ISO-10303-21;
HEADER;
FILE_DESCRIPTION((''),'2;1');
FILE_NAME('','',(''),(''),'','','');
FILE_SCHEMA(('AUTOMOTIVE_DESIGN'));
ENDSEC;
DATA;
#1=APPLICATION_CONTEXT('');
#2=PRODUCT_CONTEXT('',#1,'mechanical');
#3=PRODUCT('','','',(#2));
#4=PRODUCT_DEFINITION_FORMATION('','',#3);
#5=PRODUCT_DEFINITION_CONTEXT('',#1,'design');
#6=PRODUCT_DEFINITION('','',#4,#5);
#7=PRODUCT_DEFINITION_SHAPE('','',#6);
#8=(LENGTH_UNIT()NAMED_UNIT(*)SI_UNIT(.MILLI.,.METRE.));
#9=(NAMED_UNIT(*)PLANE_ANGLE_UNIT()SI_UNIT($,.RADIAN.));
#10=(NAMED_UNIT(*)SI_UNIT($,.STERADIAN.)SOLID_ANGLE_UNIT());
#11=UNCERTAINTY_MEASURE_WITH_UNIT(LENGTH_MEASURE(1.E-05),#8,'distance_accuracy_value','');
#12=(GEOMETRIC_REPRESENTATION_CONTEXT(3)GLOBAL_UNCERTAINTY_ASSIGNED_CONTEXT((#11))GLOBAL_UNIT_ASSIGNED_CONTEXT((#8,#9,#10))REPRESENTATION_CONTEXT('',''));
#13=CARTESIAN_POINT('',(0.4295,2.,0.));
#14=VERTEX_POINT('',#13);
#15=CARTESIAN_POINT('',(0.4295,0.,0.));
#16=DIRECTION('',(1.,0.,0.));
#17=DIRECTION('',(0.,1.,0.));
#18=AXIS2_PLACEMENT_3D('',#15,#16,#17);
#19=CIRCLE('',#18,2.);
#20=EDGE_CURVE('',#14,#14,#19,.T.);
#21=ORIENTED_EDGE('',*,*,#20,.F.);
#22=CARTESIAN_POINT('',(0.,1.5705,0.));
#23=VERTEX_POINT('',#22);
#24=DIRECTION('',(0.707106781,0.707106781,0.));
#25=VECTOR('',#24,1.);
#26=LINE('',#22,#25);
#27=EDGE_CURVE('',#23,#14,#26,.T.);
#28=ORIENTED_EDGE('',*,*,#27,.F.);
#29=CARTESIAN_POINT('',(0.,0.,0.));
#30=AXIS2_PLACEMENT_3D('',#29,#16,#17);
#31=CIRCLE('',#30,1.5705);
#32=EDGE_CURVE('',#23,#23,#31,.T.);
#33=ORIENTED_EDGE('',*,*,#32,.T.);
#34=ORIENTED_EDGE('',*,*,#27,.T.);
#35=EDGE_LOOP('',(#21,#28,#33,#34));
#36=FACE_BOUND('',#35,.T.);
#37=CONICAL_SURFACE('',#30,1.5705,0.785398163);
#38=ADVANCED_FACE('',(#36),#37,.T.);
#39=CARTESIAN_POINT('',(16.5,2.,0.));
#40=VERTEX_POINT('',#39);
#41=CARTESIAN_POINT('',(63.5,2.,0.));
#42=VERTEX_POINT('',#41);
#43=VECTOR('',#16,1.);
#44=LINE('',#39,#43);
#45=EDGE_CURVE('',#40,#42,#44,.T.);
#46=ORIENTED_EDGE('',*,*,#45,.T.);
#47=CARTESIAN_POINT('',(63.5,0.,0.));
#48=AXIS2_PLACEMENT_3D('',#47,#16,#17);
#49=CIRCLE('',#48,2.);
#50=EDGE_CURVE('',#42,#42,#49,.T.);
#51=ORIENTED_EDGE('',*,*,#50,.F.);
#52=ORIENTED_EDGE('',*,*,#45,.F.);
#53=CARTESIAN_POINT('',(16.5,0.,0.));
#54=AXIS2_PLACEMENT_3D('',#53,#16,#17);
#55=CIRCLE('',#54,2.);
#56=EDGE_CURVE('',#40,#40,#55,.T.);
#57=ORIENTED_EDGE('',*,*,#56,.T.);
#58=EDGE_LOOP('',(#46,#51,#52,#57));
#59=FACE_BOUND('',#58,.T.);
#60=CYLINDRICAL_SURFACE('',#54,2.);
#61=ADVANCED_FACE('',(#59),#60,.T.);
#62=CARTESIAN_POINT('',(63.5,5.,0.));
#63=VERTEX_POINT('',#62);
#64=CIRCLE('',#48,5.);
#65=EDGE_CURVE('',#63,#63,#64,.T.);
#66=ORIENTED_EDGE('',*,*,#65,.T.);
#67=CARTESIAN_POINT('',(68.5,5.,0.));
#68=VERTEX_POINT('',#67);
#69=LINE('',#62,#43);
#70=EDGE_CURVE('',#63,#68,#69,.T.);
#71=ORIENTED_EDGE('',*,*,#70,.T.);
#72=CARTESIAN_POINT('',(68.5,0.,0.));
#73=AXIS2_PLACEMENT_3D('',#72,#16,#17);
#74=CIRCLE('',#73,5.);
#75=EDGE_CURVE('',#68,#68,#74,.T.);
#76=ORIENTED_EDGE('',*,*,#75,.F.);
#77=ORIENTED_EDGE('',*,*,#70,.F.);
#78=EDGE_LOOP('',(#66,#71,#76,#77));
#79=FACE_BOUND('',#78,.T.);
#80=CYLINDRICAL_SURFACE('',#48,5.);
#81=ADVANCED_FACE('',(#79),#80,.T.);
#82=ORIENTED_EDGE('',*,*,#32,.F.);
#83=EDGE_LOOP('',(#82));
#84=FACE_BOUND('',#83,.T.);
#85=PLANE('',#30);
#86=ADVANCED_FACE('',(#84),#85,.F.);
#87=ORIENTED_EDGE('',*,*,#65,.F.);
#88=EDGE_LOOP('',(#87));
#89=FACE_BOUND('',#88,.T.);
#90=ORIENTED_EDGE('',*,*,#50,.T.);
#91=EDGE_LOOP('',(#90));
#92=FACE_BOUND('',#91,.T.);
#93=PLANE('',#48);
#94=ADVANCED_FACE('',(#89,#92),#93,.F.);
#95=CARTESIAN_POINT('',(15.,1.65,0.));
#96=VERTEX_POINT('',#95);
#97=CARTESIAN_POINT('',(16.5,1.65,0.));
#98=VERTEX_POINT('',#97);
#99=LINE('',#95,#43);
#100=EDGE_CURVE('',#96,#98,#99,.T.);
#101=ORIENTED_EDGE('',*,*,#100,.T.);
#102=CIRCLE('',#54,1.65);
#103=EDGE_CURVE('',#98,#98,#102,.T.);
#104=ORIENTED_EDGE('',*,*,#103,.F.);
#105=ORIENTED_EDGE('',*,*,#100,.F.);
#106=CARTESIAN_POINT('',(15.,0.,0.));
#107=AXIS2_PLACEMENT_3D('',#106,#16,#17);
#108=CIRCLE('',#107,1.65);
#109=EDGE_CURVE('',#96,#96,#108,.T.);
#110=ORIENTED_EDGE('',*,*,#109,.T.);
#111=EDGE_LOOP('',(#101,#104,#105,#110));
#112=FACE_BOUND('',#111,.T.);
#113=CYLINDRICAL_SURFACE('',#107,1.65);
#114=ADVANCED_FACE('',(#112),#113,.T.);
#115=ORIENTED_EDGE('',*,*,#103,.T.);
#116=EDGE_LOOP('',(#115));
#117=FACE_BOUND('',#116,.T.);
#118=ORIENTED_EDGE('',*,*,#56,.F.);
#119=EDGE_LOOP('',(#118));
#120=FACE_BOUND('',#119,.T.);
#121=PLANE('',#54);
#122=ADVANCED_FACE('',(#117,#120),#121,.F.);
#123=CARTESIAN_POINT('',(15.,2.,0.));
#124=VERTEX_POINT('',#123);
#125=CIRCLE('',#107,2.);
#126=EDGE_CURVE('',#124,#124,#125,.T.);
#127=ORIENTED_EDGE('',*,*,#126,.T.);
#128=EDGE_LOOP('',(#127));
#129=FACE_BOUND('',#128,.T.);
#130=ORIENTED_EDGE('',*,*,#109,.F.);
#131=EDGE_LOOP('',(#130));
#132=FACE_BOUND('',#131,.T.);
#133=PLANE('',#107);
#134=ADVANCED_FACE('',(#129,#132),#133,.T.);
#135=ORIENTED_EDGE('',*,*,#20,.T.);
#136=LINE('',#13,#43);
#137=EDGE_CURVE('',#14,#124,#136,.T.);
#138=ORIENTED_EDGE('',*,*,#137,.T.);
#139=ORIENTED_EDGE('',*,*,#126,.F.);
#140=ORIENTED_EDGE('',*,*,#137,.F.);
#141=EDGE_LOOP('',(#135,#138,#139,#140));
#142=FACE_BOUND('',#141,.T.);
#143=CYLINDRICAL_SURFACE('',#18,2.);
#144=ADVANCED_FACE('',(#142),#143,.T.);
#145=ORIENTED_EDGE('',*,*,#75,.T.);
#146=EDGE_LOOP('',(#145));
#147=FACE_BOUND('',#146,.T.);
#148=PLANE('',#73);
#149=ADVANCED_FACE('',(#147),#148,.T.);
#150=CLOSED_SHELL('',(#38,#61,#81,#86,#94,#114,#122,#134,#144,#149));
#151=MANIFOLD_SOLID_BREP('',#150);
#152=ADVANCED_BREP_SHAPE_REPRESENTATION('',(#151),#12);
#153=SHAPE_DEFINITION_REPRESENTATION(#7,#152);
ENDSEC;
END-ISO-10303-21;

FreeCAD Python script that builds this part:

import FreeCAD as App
import Part
import Sketcher

V = App.Vector
Q = App.Units.Quantity


def add_polygon(sketch, points):
    """Adds a closed chain of lines whose ends are joined by coincident constraints."""
    first, n = sketch.GeometryCount, len(points)
    for a, b in zip(points, points[1:] + points[:1]):
        sketch.addGeometry(Part.LineSegment(App.Vector(*a, 0), App.Vector(*b, 0)), False)
    for i in range(n):
        sketch.addConstraint(Sketcher.Constraint("Coincident", first + i, 2, first + (i + 1) % n, 1))

doc = App.newDocument("Part")
body = doc.addObject("PartDesign::Body", "Body")

# Sketch on XY plane
sketch1 = body.newObject("Sketcher::SketchObject", "Sketch")
sketch1.AttachmentSupport = (doc.getObject("XY_Plane"), [""])
sketch1.MapMode = "FlatFace"
add_polygon(sketch1, [(0, 0), (68.5, 0), (68.5, 5), (63.5, 5), (63.5, 2), (16.5, 2), (16.5, 1.65), (15, 1.65), (15, 2), (0.43, 2), (0, 1.57)])  # lines 0-10
sketch1.addConstraint(Sketcher.Constraint("Horizontal", 0))
sketch1.addConstraint(Sketcher.Constraint("Vertical", 1))
sketch1.addConstraint(Sketcher.Constraint("Horizontal", 2))
sketch1.addConstraint(Sketcher.Constraint("Vertical", 3))
sketch1.addConstraint(Sketcher.Constraint("Horizontal", 4))
sketch1.addConstraint(Sketcher.Constraint("Vertical", 5))
sketch1.addConstraint(Sketcher.Constraint("Horizontal", 6))
sketch1.addConstraint(Sketcher.Constraint("Vertical", 7))
sketch1.addConstraint(Sketcher.Constraint("Horizontal", 8))
sketch1.addConstraint(Sketcher.Constraint("Vertical", 10))
sketch1.addConstraint(Sketcher.Constraint("Coincident", 10, 2, -1, 1))
sketch1.addConstraint(Sketcher.Constraint("Horizontal", 4, 2, 7, 2))
sketch1.addConstraint(Sketcher.Constraint("Equal", 2, 1))
sketch1.addConstraint(Sketcher.Constraint("DistanceX", 2, 2, 2, 1, 5.0))
sketch1.addConstraint(Sketcher.Constraint("DistanceX", 4, 2, 4, 1, 47.0))
sketch1.addConstraint(Sketcher.Constraint("DistanceY", 3, 2, 3, 1, 3.0))
sketch1.addConstraint(Sketcher.Constraint("Angle", 9, Q("-135 deg")))
sketch1.addConstraint(Sketcher.Constraint("DistanceX", 0, 1, 0, 2, 68.5))
sketch1.addConstraint(Sketcher.Constraint("DistanceX", 6, 2, 6, 1, 1.5))
sketch1.addConstraint(Sketcher.Constraint("DistanceY", 5, 2, 5, 1, 0.35))
sketch1.addConstraint(Sketcher.Constraint("DistanceX", 8, 2, 8, 1, 14.5705))
revolution = body.newObject("PartDesign::Revolution", "Revolution")
revolution.Profile = sketch1
revolution.ReferenceAxis = (sketch1, ["H_Axis"])
revolution.Angle = 360

doc.recompute()
